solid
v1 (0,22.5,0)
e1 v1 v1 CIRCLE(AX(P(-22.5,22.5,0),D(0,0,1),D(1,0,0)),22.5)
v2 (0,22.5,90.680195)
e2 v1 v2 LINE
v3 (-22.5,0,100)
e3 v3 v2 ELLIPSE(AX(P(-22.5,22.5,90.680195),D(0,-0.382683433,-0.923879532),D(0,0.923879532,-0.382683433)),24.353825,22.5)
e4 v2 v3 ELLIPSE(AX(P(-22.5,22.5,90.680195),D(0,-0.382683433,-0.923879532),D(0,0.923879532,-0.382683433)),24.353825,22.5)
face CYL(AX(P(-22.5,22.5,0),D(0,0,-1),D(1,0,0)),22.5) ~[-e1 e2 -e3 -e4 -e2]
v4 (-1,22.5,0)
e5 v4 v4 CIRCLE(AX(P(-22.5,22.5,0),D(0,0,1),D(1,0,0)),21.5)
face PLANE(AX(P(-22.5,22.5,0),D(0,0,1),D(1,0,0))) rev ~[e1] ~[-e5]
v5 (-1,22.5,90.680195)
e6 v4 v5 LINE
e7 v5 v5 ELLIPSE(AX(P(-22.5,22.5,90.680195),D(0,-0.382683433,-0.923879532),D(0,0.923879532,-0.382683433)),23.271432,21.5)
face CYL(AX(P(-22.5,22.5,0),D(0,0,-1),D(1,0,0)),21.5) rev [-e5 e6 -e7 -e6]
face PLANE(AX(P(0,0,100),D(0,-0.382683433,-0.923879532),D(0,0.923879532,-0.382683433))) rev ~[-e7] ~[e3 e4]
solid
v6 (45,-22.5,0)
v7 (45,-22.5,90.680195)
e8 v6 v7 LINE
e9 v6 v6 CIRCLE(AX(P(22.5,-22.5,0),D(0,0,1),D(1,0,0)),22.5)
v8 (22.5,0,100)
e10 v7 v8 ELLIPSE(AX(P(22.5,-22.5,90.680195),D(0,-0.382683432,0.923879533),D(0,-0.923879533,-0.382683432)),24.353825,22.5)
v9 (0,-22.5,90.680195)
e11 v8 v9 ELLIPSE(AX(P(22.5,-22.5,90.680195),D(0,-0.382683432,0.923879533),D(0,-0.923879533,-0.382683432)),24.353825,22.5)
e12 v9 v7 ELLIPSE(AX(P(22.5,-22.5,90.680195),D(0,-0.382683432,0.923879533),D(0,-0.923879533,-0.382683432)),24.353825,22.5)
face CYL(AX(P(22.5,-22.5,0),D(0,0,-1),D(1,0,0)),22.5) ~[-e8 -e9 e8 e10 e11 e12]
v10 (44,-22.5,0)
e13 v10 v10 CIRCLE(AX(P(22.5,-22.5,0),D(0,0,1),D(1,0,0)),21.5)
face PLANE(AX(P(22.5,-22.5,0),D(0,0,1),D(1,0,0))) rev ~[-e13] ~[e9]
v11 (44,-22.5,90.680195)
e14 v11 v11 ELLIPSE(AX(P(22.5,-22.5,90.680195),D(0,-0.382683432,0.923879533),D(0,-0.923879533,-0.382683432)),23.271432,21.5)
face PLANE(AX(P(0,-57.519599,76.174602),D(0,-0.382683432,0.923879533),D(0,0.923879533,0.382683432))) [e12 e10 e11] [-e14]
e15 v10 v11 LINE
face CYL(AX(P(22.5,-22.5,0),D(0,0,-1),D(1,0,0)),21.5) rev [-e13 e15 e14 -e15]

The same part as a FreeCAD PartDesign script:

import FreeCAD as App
import Part
import Sketcher
from FreeCAD import Vector
Q = App.Units.Quantity

doc = App.newDocument("Part")
params = doc.addObject("Spreadsheet::Sheet", "Params")
for row, (alias, value) in enumerate([
    ("sketch1_diameter", "45 mm"),
    ("sketch1_diameter2", "43 mm"),
    ("pad1_length", "100 mm"),
    ("pocket1_length", "100 mm"),
    ("sketch3_diameter", "45 mm"),
    ("sketch3_diameter2", "43 mm"),
    ("pad2_length", "100 mm"),
    ("pocket2_length", "100 mm"),
], start=1):
    params.set(f"A{row}", alias)
    params.set(f"B{row}", "=" + value)
    params.setAlias(f"B{row}", alias)

body = doc.addObject("PartDesign::Body", "Body")

# Sketch on XY plane
sketch1 = doc.addObject("Sketcher::SketchObject", "Sketch")
body.addObject(sketch1)
sketch1.AttachmentSupport = (doc.XY_Plane, [""])
sketch1.MapMode = "FlatFace"
sketch1.addGeometry([
    Part.Circle(Vector(-22, 22, 0), Vector(0, 0, 1), 22),
    Part.Circle(Vector(-22, 22, 0), Vector(0, 0, 1), 22),
], False)
sketch1.addConstraint([
    Sketcher.Constraint("Coincident", 1, 3, 0, 3),
    Sketcher.Constraint("Diameter", 0, 45.0),
    Sketcher.Constraint("Diameter", 1, 43.0),
    Sketcher.Constraint("DistanceX", 0, 3, -1, 1, 22.5),
    Sketcher.Constraint("DistanceY", -1, 1, 0, 3, 22.5),
])
sketch1.setExpression("Constraints[1]", "Params.sketch1_diameter")
sketch1.setExpression("Constraints[2]", "Params.sketch1_diameter2")
pad1 = doc.addObject("PartDesign::Pad", "Pad")
body.addObject(pad1)
pad1.Profile = sketch1
pad1.setExpression("Length", "Params.pad1_length")

# Sketch on YZ plane
sketch2 = doc.addObject("Sketcher::SketchObject", "Sketch001")
body.addObject(sketch2)
sketch2.AttachmentSupport = (doc.YZ_Plane, [""])
sketch2.MapMode = "FlatFace"
sketch2.addGeometry([
    Part.LineSegment(Vector(0, 114, 0), Vector(0, 100, 0)),
    Part.LineSegment(Vector(0, 100, 0), Vector(49, 80, 0)),
    Part.LineSegment(Vector(49, 80, 0), Vector(49, 114, 0)),
    Part.LineSegment(Vector(49, 114, 0), Vector(0, 114, 0)),
], False)
sketch2.addConstraint([
    Sketcher.Constraint("Coincident", 0, 2, 1, 1),
    Sketcher.Constraint("Coincident", 1, 2, 2, 1),
    Sketcher.Constraint("Coincident", 2, 2, 3, 1),
    Sketcher.Constraint("Coincident", 3, 2, 0, 1),
    Sketcher.Constraint("Vertical", 0),
    Sketcher.Constraint("Vertical", 2),
    Sketcher.Constraint("Horizontal", 3),
    Sketcher.Constraint("PointOnObject", 0, 2, -2),
    Sketcher.Constraint("DistanceY", -1, 1, 0, 2, 100.0),
    Sketcher.Constraint("Angle", 1, Q("-22.5 deg")),
    Sketcher.Constraint("DistanceX", 3, 2, 3, 1, 48.670089),
    Sketcher.Constraint("DistanceY", 0, 2, 0, 1, 14.382386),
])
pocket1 = doc.addObject("PartDesign::Pocket", "Pocket")
body.addObject(pocket1)
pocket1.Profile = sketch2
pocket1.setExpression("Length", "Params.pocket1_length")
body2 = doc.addObject("PartDesign::Body", "Body001")

# Sketch on XY plane
sketch3 = doc.addObject("Sketcher::SketchObject", "Sketch002")
body2.addObject(sketch3)
sketch3.AttachmentSupport = (doc.getObject("XY_Plane001"), [""])
sketch3.MapMode = "FlatFace"
sketch3.addGeometry([
    Part.Circle(Vector(22, -22, 0), Vector(0, 0, 1), 22),
    Part.Circle(Vector(22, -22, 0), Vector(0, 0, 1), 22),
], False)
sketch3.addConstraint([
    Sketcher.Constraint("Coincident", 1, 3, 0, 3),
    Sketcher.Constraint("Diameter", 0, 45.0),
    Sketcher.Constraint("Diameter", 1, 43.0),
    Sketcher.Constraint("DistanceX", -1, 1, 0, 3, 22.5),
    Sketcher.Constraint("DistanceY", 0, 3, -1, 1, 22.5),
])
sketch3.setExpression("Constraints[1]", "Params.sketch3_diameter")
sketch3.setExpression("Constraints[2]", "Params.sketch3_diameter2")
pad2 = doc.addObject("PartDesign::Pad", "Pad001")
body2.addObject(pad2)
pad2.Profile = sketch3
pad2.setExpression("Length", "Params.pad2_length")

# Sketch on YZ plane
sketch4 = doc.addObject("Sketcher::SketchObject", "Sketch003")
body2.addObject(sketch4)
sketch4.AttachmentSupport = (doc.getObject("YZ_Plane001"), [""])
sketch4.MapMode = "FlatFace"
sketch4.addGeometry([
    Part.LineSegment(Vector(-58, 76, 0), Vector(0, 100, 0)),
    Part.LineSegment(Vector(0, 100, 0), Vector(0, 117, 0)),
    Part.LineSegment(Vector(0, 117, 0), Vector(-58, 117, 0)),
    Part.LineSegment(Vector(-58, 117, 0), Vector(-58, 76, 0)),
], False)
sketch4.addConstraint([
    Sketcher.Constraint("Coincident", 0, 2, 1, 1),
    Sketcher.Constraint("Coincident", 1, 2, 2, 1),
    Sketcher.Constraint("Coincident", 2, 2, 3, 1),
    Sketcher.Constraint("Coincident", 3, 2, 0, 1),
    Sketcher.Constraint("Vertical", 1),
    Sketcher.Constraint("Horizontal", 2),
    Sketcher.Constraint("Vertical", 3),
    Sketcher.Constraint("PointOnObject", 0, 2, -2),
    Sketcher.Constraint("DistanceY", -1, 1, 0, 2, 100.0),
    Sketcher.Constraint("Angle", 0, Q("22.5 deg")),
    Sketcher.Constraint("DistanceX", 2, 2, 2, 1, 57.519599),
    Sketcher.Constraint("DistanceY", 1, 1, 1, 2, 16.917327),
])
pocket2 = doc.addObject("PartDesign::Pocket", "Pocket001")
body2.addObject(pocket2)
pocket2.Profile = sketch4
pocket2.setExpression("Length", "Params.pocket2_length")
pocket2.Reversed = True

doc.recompute()
